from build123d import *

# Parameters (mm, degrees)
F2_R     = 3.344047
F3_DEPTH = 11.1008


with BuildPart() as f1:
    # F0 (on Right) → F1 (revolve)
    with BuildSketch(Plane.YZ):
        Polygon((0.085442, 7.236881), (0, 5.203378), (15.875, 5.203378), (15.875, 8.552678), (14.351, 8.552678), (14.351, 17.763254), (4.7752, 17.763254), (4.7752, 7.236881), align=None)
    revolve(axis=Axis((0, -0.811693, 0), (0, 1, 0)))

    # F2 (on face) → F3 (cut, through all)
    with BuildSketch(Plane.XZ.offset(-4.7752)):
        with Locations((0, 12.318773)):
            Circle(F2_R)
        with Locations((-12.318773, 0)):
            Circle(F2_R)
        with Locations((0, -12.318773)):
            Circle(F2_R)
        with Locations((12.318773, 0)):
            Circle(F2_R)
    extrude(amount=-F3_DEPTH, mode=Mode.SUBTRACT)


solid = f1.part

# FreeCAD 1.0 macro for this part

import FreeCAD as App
import Part
import Sketcher
from FreeCAD import Vector
Q = App.Units.Quantity


def add_polygon(sketch, points):
    """Adds a closed chain of lines whose ends are joined by coincident constraints."""
    first, n = sketch.GeometryCount, len(points)
    for a, b in zip(points, points[1:] + points[:1]):
        sketch.addGeometry(Part.LineSegment(App.Vector(*a, 0), App.Vector(*b, 0)), False)
    for i in range(n):
        sketch.addConstraint(Sketcher.Constraint("Coincident", first + i, 2, first + (i + 1) % n, 1))

doc = App.newDocument("Part")
body = doc.addObject("PartDesign::Body", "Body")

# Sketch on YZ plane
sketch1 = doc.addObject("Sketcher::SketchObject", "Sketch")
body.addObject(sketch1)
sketch1.AttachmentSupport = (doc.YZ_Plane, [""])
sketch1.MapMode = "FlatFace"
add_polygon(sketch1, [(0.1, 7.2), (0, 5.2), (15.9, 5.2), (15.9, 8.6), (14.4, 8.6), (14.4, 17.8), (4.8, 17.8), (4.8, 7.2)])  # lines 0-7
sketch1.addConstraint([
    Sketcher.Constraint("Horizontal", 1),
    Sketcher.Constraint("Vertical", 2),
    Sketcher.Constraint("Horizontal", 3),
    Sketcher.Constraint("Vertical", 4),
    Sketcher.Constraint("Horizontal", 5),
    Sketcher.Constraint("Vertical", 6),
    Sketcher.Constraint("Horizontal", 7),
    Sketcher.Constraint("PointOnObject", 0, 2, -2),
    Sketcher.Constraint("DistanceX", 3, 2, 3, 1, Q("0.06 in")),
    Sketcher.Constraint("DistanceX", 1, 1, 1, 2, Q("0.625 in")),
    Sketcher.Constraint("DistanceX", 5, 2, 5, 1, Q("0.377 in")),
    Sketcher.Constraint("DistanceY", 2, 1, 2, 2, 3.3493),
    Sketcher.Constraint("DistanceX", 7, 2, 7, 1, 4.689758),
    Sketcher.Constraint("DistanceY", 4, 1, 4, 2, 9.210576),
    Sketcher.Constraint("DistanceY", 6, 2, 6, 1, 10.526373),
    Sketcher.Constraint("DistanceY", -1, 1, 6, 2, 7.236881),
])
revolution = doc.addObject("PartDesign::Revolution", "Revolution")
body.addObject(revolution)
revolution.Profile = sketch1
revolution.ReferenceAxis = (sketch1, ["H_Axis"])
revolution.Angle = 360

# Sketch on XZ plane
sketch2 = doc.addObject("Sketcher::SketchObject", "Sketch001")
body.addObject(sketch2)
sketch2.AttachmentSupport = (doc.XZ_Plane, [""])
sketch2.MapMode = "FlatFace"
sketch2.AttachmentOffset = App.Placement(Vector(0, 0, -0.188 * 25.4), App.Rotation())
sketch2.addGeometry([
    Part.Circle(Vector(0, 12.3, 0), Vector(0, 0, 1), 3.3),
    Part.Circle(Vector(-12.3, 0, 0), Vector(0, 0, 1), 3.3),
    Part.Circle(Vector(0, -12.3, 0), Vector(0, 0, 1), 3.3),
    Part.Circle(Vector(12.3, 0, 0), Vector(0, 0, 1), 3.3),
], False)
sketch2.addConstraint([
    Sketcher.Constraint("Equal", 0, 1),
    Sketcher.Constraint("Equal", 1, 2),
    Sketcher.Constraint("Equal", 2, 3),
    Sketcher.Constraint("Symmetric", 0, 3, 2, 3, -1, 1),
    Sketcher.Constraint("Symmetric", 1, 3, 3, 3, -1, 1),
    Sketcher.Constraint("PointOnObject", 0, 3, -2),
    Sketcher.Constraint("PointOnObject", 1, 3, -1),
    Sketcher.Constraint("Diameter", 0, 6.688094),
    Sketcher.Constraint("DistanceY", -1, 1, 0, 3, 12.318773),
    Sketcher.Constraint("DistanceX", 1, 3, -1, 1, 12.318773),
])
pocket1 = doc.addObject("PartDesign::Pocket", "Pocket")
body.addObject(pocket1)
pocket1.Profile = sketch2
pocket1.Type = "ThroughAll"

doc.recompute()
